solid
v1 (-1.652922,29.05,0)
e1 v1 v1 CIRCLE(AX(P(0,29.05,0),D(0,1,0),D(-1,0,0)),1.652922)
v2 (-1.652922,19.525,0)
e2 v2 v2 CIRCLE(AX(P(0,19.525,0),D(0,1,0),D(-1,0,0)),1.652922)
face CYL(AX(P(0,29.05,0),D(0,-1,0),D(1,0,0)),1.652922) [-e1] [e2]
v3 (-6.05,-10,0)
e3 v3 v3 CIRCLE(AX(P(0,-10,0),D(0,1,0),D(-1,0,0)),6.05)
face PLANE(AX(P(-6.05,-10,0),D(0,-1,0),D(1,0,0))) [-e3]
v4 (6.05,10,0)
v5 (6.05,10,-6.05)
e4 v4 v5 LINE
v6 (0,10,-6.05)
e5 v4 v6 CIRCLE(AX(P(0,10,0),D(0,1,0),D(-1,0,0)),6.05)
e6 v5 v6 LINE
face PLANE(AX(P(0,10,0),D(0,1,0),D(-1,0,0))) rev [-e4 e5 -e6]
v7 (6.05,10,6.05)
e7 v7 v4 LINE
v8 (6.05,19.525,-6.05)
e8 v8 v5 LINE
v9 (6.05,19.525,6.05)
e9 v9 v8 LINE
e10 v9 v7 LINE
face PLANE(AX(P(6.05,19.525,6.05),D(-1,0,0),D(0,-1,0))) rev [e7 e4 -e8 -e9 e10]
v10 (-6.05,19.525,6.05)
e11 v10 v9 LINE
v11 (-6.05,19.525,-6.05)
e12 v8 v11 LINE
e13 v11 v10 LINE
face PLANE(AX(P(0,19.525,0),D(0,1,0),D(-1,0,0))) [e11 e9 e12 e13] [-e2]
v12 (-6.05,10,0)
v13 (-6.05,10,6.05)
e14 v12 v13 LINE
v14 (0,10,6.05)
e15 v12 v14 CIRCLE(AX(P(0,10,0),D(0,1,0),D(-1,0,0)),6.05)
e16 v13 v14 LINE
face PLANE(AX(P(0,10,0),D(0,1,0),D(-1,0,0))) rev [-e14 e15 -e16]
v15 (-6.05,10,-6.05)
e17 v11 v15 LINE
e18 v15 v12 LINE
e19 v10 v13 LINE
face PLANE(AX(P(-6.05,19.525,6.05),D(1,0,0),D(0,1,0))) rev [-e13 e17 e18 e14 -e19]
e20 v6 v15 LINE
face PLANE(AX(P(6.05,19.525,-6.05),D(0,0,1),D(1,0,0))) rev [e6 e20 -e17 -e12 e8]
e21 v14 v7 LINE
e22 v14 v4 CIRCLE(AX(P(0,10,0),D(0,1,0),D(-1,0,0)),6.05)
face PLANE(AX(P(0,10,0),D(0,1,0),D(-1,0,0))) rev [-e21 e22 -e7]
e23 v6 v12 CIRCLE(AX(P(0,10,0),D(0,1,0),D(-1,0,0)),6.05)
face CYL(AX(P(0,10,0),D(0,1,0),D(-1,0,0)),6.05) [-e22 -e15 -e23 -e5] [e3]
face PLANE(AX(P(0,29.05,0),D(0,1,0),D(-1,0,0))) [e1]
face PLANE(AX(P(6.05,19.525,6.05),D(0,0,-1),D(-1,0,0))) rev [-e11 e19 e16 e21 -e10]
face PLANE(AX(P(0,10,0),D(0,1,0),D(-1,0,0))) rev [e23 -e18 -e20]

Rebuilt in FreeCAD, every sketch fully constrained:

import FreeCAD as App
import Part
import Sketcher
Q = App.Units.Quantity


def add_polygon(sketch, points):
    """Adds a closed chain of lines whose ends are joined by coincident constraints."""
    first, n = sketch.GeometryCount, len(points)
    for a, b in zip(points, points[1:] + points[:1]):
        sketch.addGeometry(Part.LineSegment(App.Vector(*a, 0), App.Vector(*b, 0)), False)
    for i in range(n):
        sketch.addConstraint(Sketcher.Constraint("Coincident", first + i, 2, first + (i + 1) % n, 1))

doc = App.newDocument("Part")
params = doc.addObject("Spreadsheet::Sheet", "Params")
for row, (alias, value) in enumerate([
    ("sketch1_height", "20 mm"),
    ("sketch1_width", "6.05 mm"),
    ("revolution_angle", "360 deg"),
    ("sketch2_width", "12.1 mm"),
    ("pad1_length", "9.525 mm"),
    ("pad2_length", "9.525 mm"),
], start=1):
    params.set(f"A{row}", alias)
    params.set(f"B{row}", "=" + value)
    params.setAlias(f"B{row}", alias)

body = doc.addObject("PartDesign::Body", "Body")

# Sketch on XY plane
sketch1 = body.newObject("Sketcher::SketchObject", "Sketch")
sketch1.AttachmentSupport = (doc.getObject("XY_Plane"), [""])
sketch1.MapMode = "FlatFace"
add_polygon(sketch1, [(-6, 10), (-6, -10), (0, -10), (0, 10)])  # lines 0-3
sketch1.addConstraint([
    Sketcher.Constraint("Vertical", 0),
    Sketcher.Constraint("Horizontal", 1),
    Sketcher.Constraint("Vertical", 2),
    Sketcher.Constraint("Horizontal", 3),
    Sketcher.Constraint("Symmetric", 1, 2, 2, 2, -1, 1),
    Sketcher.Constraint("DistanceY", 0, 2, 0, 1, Q("20 mm")),
    Sketcher.Constraint("DistanceX", 1, 1, 1, 2, Q("6.05 mm")),
])
sketch1.setExpression("Constraints[9]", "Params.sketch1_height")
sketch1.setExpression("Constraints[10]", "Params.sketch1_width")
revolution = body.newObject("PartDesign::Revolution", "Revolution")
revolution.Profile = sketch1
revolution.ReferenceAxis = (sketch1, ["V_Axis"])
revolution.setExpression("Angle", "Params.revolution_angle")

# Sketch on XZ plane
sketch2 = body.newObject("Sketcher::SketchObject", "Sketch001")
sketch2.AttachmentSupport = (doc.getObject("XZ_Plane"), [""])
sketch2.MapMode = "FlatFace"
sketch2.AttachmentOffset = App.Placement(App.Vector(0, 0, -10), App.Rotation())
add_polygon(sketch2, [(-6, -6), (-6, 6), (6, 6), (6, -6)])  # lines 0-3
sketch2.addConstraint([
    Sketcher.Constraint("Vertical", 0),
    Sketcher.Constraint("Horizontal", 1),
    Sketcher.Constraint("Vertical", 2),
    Sketcher.Constraint("Horizontal", 3),
    Sketcher.Constraint("Symmetric", 0, 2, 2, 2, -1, 1),
    Sketcher.Constraint("Equal", 3, 0),
    Sketcher.Constraint("DistanceX", 1, 1, 1, 2, Q("12.1 mm")),
])
sketch2.setExpression("Constraints[10]", "Params.sketch2_width")
pad1 = body.newObject("PartDesign::Pad", "Pad")
pad1.Profile = sketch2
pad1.setExpression("Length", "Params.pad1_length")
pad1.Reversed = True

# Sketch on XZ plane
sketch3 = body.newObject("Sketcher::SketchObject", "Sketch002")
sketch3.AttachmentSupport = (doc.getObject("XZ_Plane"), [""])
sketch3.MapMode = "FlatFace"
sketch3.AttachmentOffset = App.Placement(App.Vector(0, 0, -19.525), App.Rotation())
sketch3.addGeometry(Part.Circle(App.Vector(0, 0, 0), App.Vector(0, 0, 1), 1.7), False)
sketch3.addConstraint([
    Sketcher.Constraint("Coincident", 0, 3, -1, 1),
    Sketcher.Constraint("Diameter", 0, Q("3.305844 mm")),
])
pad2 = body.newObject("PartDesign::Pad", "Pad001")
pad2.Profile = sketch3
pad2.setExpression("Length", "Params.pad2_length")
pad2.Reversed = True

doc.recompute()
